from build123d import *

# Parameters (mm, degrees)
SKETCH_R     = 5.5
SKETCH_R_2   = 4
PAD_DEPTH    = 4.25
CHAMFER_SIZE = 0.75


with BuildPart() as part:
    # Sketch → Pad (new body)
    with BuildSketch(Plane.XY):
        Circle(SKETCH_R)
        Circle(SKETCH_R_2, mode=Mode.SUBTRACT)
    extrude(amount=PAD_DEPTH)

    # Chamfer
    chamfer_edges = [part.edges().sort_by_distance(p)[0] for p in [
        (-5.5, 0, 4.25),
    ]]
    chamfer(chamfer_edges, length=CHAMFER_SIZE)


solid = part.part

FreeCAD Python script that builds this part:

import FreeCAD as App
import Part
import Sketcher

V = App.Vector


def edges_at(feature, points):
    """Names of the edges that pass closest to the given points."""
    edges = feature.Shape.Edges
    near = lambda p: min(range(len(edges)), key=lambda i: edges[i].distToShape(Part.Vertex(*p))[0])
    return sorted({f"Edge{near(p) + 1}" for p in points})

doc = App.newDocument("Part")
body = doc.addObject("PartDesign::Body", "Body")

# Sketch on XY plane
sketch1 = body.newObject("Sketcher::SketchObject", "Sketch")
sketch1.AttachmentSupport = (doc.getObject("XY_Plane"), [""])
sketch1.MapMode = "FlatFace"
sketch1.addGeometry(Part.Circle(V(0, 0, 0), V(0, 0, 1), 5.5), False)
sketch1.addGeometry(Part.Circle(V(0, 0, 0), V(0, 0, 1), 4), False)
sketch1.addConstraint(Sketcher.Constraint("Coincident", 0, 3, -1, 1))
sketch1.addConstraint(Sketcher.Constraint("Coincident", 1, 3, -1, 1))
sketch1.addConstraint(Sketcher.Constraint("Diameter", 0, 11.0))
sketch1.addConstraint(Sketcher.Constraint("Diameter", 1, 8.0))
pad1 = body.newObject("PartDesign::Pad", "Pad")
pad1.Profile = sketch1
pad1.Length = 4.25
doc.recompute()

chamfer = body.newObject("PartDesign::Chamfer", "Chamfer")
chamfer.Base = (pad1, edges_at(pad1, [(-5.5, 0, 4.25)]))
chamfer.Size = 0.75

doc.recompute()
